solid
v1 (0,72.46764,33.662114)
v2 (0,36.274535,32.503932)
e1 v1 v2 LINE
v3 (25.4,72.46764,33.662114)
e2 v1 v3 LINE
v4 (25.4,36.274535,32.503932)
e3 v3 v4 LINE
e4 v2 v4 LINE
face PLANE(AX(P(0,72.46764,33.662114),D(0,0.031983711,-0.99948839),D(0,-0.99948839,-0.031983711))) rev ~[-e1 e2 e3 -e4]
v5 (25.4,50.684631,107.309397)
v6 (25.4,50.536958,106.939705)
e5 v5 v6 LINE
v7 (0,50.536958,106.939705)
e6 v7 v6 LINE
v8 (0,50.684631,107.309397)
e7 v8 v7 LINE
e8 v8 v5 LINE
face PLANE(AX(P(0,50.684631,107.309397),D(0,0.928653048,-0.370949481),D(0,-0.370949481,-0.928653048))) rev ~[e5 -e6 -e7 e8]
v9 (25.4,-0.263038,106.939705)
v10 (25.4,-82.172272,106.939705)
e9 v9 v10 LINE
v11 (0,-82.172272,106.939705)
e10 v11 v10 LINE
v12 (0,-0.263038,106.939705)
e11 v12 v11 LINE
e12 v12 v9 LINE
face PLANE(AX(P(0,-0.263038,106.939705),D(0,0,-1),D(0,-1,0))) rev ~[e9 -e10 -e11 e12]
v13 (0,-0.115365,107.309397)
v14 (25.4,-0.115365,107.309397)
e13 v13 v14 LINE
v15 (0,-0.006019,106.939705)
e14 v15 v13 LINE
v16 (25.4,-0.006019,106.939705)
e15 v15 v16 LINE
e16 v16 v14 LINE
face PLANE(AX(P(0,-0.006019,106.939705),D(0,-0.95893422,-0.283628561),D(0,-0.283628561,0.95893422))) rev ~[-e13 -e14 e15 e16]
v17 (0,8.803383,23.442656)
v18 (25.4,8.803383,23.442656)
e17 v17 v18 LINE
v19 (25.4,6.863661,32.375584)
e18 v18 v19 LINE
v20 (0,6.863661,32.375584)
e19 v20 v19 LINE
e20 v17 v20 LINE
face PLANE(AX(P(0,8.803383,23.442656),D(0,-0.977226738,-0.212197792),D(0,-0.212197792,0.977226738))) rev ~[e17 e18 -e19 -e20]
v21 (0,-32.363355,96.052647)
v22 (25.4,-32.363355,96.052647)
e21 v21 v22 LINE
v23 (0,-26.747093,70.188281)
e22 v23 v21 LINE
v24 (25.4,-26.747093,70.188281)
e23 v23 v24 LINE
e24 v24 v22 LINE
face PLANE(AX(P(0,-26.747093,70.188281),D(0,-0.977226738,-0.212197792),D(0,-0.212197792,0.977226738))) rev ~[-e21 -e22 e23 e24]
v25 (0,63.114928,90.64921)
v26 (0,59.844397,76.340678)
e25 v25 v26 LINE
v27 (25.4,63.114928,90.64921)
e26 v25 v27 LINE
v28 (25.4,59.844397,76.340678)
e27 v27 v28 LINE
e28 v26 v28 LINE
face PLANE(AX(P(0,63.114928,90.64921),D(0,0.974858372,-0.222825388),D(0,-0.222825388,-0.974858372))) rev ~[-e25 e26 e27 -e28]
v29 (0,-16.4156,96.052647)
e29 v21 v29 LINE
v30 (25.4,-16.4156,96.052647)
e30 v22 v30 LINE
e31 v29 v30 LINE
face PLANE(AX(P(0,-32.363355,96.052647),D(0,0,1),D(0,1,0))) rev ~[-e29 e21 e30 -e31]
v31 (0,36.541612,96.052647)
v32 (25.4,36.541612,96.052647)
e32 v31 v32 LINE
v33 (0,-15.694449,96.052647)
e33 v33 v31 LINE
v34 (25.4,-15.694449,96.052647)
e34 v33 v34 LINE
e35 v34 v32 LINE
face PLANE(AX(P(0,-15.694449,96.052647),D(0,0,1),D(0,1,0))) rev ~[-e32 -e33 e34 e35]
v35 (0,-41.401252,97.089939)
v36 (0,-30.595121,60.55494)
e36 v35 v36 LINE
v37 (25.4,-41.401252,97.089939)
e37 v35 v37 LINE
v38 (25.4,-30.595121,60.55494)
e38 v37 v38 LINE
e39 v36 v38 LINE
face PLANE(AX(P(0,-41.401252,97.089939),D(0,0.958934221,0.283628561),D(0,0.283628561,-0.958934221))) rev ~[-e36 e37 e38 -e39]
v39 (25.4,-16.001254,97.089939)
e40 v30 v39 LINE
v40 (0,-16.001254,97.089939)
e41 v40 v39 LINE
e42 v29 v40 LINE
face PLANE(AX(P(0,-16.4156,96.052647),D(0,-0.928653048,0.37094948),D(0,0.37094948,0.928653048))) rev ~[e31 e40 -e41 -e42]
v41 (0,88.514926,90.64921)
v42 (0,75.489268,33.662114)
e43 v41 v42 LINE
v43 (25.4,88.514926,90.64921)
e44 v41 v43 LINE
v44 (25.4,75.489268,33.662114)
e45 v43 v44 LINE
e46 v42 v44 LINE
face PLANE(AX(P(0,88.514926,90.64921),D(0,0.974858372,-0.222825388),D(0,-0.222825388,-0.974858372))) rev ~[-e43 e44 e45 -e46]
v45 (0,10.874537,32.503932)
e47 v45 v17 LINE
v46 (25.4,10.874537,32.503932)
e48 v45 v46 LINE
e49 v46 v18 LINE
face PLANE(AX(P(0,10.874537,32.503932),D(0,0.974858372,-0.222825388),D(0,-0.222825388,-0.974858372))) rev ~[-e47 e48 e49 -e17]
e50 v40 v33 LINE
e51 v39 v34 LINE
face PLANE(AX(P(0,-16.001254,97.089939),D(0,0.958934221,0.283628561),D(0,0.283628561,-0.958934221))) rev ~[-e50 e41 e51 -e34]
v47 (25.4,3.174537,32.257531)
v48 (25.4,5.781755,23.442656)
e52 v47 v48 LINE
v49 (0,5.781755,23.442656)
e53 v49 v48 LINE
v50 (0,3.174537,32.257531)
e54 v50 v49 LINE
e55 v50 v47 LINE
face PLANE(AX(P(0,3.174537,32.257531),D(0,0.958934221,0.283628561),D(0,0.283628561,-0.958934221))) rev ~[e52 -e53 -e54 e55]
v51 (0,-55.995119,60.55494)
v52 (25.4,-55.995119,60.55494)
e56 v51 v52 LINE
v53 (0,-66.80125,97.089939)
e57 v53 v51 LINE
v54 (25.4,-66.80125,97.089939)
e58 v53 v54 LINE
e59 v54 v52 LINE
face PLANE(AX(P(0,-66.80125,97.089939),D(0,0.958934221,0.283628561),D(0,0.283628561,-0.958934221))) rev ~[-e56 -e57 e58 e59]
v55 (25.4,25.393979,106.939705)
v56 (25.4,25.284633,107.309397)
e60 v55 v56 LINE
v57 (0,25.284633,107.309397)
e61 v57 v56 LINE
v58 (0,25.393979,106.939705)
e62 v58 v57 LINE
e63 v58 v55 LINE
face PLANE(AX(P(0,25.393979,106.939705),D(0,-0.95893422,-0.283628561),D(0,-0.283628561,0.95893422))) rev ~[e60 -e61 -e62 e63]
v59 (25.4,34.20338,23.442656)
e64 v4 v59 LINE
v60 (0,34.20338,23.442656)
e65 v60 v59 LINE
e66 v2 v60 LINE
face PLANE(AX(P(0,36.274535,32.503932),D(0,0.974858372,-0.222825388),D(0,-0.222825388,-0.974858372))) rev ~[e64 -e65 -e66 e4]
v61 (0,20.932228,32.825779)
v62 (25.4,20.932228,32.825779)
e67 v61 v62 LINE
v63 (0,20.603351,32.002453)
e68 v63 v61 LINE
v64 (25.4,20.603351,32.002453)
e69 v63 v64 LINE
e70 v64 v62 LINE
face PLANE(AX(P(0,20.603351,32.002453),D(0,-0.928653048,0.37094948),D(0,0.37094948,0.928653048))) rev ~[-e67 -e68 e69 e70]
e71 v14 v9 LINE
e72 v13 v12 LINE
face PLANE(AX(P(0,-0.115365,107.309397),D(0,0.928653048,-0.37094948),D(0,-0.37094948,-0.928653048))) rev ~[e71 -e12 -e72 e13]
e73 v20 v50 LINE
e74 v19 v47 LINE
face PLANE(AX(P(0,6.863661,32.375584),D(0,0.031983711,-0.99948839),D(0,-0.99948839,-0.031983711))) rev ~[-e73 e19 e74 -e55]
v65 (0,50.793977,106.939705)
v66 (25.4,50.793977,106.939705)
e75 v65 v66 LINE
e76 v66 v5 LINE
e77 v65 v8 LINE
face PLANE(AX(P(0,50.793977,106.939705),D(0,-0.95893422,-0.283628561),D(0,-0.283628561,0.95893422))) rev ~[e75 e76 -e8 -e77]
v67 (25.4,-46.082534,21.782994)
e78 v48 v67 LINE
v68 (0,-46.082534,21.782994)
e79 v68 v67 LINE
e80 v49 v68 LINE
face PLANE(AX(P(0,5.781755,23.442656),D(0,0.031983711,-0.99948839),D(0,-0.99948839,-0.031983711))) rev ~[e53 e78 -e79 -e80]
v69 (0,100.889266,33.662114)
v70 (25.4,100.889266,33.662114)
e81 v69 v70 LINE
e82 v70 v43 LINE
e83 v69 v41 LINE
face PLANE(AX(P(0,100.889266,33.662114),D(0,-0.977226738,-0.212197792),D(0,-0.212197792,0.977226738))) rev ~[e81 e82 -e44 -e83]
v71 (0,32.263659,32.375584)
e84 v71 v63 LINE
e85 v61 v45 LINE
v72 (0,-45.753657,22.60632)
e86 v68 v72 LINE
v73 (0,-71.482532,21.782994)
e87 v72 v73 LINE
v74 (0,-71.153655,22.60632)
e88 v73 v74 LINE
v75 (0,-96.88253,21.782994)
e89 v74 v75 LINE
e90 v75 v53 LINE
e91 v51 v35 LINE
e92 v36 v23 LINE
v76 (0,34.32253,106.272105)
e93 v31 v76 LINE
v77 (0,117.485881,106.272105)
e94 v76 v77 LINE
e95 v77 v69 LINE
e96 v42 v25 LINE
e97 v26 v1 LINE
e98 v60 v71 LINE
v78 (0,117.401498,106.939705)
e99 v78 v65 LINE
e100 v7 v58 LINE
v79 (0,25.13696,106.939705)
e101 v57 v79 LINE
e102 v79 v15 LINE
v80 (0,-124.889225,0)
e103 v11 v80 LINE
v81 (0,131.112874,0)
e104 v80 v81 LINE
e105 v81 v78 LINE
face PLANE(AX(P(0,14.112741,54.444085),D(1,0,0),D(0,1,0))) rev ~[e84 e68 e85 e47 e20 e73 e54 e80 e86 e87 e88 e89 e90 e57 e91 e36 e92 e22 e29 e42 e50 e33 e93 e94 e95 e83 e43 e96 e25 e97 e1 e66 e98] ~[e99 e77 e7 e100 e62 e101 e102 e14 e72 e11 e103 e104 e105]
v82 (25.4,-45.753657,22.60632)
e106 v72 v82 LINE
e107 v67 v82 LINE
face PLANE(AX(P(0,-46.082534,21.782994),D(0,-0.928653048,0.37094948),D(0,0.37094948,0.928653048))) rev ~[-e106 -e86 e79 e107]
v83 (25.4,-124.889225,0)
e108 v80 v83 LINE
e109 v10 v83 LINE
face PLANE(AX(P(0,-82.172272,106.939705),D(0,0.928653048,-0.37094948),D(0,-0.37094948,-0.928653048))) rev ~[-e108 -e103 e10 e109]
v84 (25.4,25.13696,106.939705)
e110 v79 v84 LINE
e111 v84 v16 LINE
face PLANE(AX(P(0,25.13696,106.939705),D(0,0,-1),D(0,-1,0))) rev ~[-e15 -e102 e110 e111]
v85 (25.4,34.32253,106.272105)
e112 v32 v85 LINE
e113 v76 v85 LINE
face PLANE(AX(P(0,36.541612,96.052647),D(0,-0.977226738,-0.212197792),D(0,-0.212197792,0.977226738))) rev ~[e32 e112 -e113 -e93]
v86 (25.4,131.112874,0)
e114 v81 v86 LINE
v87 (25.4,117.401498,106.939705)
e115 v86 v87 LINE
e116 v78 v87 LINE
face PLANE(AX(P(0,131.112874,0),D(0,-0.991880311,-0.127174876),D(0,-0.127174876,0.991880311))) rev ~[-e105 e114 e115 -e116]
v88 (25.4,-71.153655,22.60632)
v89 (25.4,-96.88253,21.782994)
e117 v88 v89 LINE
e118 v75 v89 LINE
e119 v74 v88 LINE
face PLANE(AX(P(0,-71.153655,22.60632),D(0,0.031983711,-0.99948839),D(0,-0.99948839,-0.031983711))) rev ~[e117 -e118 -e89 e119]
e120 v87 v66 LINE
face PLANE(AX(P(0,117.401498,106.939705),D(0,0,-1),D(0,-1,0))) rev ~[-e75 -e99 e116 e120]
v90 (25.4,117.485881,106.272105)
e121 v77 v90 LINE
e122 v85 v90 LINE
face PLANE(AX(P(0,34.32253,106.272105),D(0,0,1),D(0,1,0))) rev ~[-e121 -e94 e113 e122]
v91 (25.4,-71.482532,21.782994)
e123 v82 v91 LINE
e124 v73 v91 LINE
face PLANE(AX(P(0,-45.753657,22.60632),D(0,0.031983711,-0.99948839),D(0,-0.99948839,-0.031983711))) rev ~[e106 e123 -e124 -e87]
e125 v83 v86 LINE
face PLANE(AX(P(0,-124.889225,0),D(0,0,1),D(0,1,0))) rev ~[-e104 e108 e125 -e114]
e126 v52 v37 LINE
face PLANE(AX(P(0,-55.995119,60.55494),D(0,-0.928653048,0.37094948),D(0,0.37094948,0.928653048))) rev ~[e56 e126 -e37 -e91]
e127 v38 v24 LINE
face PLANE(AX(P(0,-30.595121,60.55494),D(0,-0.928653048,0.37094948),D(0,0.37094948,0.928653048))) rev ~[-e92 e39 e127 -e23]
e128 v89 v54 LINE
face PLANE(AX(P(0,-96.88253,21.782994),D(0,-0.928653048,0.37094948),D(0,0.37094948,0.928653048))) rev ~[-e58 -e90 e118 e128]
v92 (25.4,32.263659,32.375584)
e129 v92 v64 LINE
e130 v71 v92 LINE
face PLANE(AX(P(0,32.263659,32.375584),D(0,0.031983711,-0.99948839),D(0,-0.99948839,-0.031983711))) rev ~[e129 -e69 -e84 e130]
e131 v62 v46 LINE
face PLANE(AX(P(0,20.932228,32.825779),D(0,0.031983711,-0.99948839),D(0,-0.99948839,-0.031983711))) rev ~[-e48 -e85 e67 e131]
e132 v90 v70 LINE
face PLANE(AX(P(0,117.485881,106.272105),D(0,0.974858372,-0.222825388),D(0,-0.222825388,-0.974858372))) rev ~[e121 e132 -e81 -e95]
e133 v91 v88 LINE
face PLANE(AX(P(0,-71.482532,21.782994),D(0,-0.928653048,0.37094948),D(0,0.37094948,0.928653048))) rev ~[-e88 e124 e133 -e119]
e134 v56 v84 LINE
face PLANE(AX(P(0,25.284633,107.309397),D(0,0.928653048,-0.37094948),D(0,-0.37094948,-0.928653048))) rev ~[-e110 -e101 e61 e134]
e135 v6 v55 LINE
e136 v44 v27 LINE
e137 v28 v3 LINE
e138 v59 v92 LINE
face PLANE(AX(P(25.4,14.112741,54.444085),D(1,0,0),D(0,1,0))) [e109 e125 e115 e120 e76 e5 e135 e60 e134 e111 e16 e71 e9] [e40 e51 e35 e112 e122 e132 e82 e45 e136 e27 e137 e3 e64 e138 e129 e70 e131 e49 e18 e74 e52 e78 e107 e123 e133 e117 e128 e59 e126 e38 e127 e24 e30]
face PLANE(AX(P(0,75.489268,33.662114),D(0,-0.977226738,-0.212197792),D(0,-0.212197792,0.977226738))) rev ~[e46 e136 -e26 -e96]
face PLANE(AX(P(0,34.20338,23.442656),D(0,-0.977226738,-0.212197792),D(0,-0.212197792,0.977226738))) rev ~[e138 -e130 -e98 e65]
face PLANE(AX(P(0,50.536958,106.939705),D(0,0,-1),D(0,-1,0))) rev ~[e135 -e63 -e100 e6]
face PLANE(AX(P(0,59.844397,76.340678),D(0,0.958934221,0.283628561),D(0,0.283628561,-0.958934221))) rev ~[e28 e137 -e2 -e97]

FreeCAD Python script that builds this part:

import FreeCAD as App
import Part
import Sketcher

V = App.Vector
Q = App.Units.Quantity


def add_polygon(sketch, points):
    """Adds a closed chain of lines whose ends are joined by coincident constraints."""
    first, n = sketch.GeometryCount, len(points)
    for a, b in zip(points, points[1:] + points[:1]):
        sketch.addGeometry(Part.LineSegment(App.Vector(*a, 0), App.Vector(*b, 0)), False)
    for i in range(n):
        sketch.addConstraint(Sketcher.Constraint("Coincident", first + i, 2, first + (i + 1) % n, 1))

doc = App.newDocument("Part")
params = doc.addObject("Spreadsheet::Sheet", "Params")
for row, (alias, value) in enumerate([
    ("pad1_length", "1 in"),
], start=1):
    params.set(f"A{row}", alias)
    params.set(f"B{row}", "=" + value)
    params.setAlias(f"B{row}", alias)

body = doc.addObject("PartDesign::Body", "Body")

# Sketch on YZ plane
sketch1 = body.newObject("Sketcher::SketchObject", "Sketch")
sketch1.AttachmentSupport = (doc.getObject("YZ_Plane"), [""])
sketch1.MapMode = "FlatFace"
add_polygon(sketch1, [(-124.889225, 0), (131.112874, 0), (117.401498, 106.939705), (50.793977, 106.939705), (50.684631, 107.309397), (50.536958, 106.939705), (25.393979, 106.939705), (25.284633, 107.309397), (25.13696, 106.939705), (-0.006019, 106.939705), (-0.115365, 107.309397), (-0.263038, 106.939705), (-82.172272, 106.939705)])  # lines 0-12
add_polygon(sketch1, [(36.541612, 96.052647), (34.32253, 106.272105), (117.485881, 106.272105), (100.889266, 33.662114), (88.514926, 90.64921), (75.489268, 33.662114), (63.114928, 90.64921), (59.844397, 76.340678), (72.46764, 33.662114), (36.274535, 32.503932), (34.20338, 23.442656), (32.263659, 32.375584), (20.603351, 32.002453), (20.932228, 32.825779), (10.874537, 32.503932), (8.803383, 23.442656), (6.863661, 32.375584), (3.174537, 32.257531), (5.781755, 23.442656), (-46.082534, 21.782994), (-45.753657, 22.60632), (-71.482532, 21.782994), (-71.153655, 22.60632), (-96.88253, 21.782994), (-66.80125, 97.089939), (-55.995119, 60.55494), (-41.401252, 97.089939), (-30.595121, 60.55494), (-26.747093, 70.188281), (-32.363355, 96.052647), (-16.4156, 96.052647), (-16.001254, 97.089939), (-15.694449, 96.052647)])  # lines 13-45
sketch1.addConstraint([
    Sketcher.Constraint("Horizontal", 0),
    Sketcher.Constraint("Horizontal", 2),
    Sketcher.Constraint("Horizontal", 5),
    Sketcher.Constraint("Horizontal", 8),
    Sketcher.Constraint("Horizontal", 11),
    Sketcher.Constraint("Horizontal", 14),
    Sketcher.Constraint("Horizontal", 42),
    Sketcher.Constraint("Horizontal", 45),
    Sketcher.Constraint("PointOnObject", 0, 2, -1),
    Sketcher.Constraint("DistanceX", 5, 2, 2, 2, Q("0.9999999 in")),
    Sketcher.Constraint("DistanceX", 6, 2, 3, 2, Q("0.9999999 in")),
    Sketcher.Constraint("DistanceX", 7, 2, 4, 2, Q("0.9999999 in")),
    Sketcher.Constraint("DistanceX", 8, 2, 5, 2, Q("0.9999999 in")),
    Sketcher.Constraint("DistanceX", 9, 2, 6, 2, Q("0.9999999 in")),
    Sketcher.Constraint("DistanceX", 10, 2, 7, 2, Q("0.9999999 in")),
    Sketcher.Constraint("DistanceX", 17, 2, 15, 2, Q("0.9999999 in")),
    Sketcher.Constraint("DistanceX", 18, 2, 16, 2, Q("0.9999999 in")),
    Sketcher.Constraint("DistanceX", 26, 2, 21, 2, Q("0.9999999 in")),
    Sketcher.Constraint("DistanceX", 27, 2, 22, 2, Q("0.9999999 in")),
    Sketcher.Constraint("DistanceX", 28, 2, 23, 2, Q("0.9999999 in")),
    Sketcher.Constraint("DistanceX", 33, 2, 31, 2, Q("0.9999999 in")),
    Sketcher.Constraint("DistanceX", 34, 2, 32, 2, Q("0.9999999 in")),
    Sketcher.Constraint("DistanceX", 35, 2, 33, 2, Q("0.9999999 in")),
    Sketcher.Constraint("DistanceX", 36, 2, 38, 2, Q("0.9999999 in")),
    Sketcher.Constraint("DistanceX", 37, 2, 39, 2, Q("0.9999999 in")),
    Sketcher.Constraint("DistanceY", 22, 2, 24, 2, Q("0.3369999 in")),
    Sketcher.Constraint("DistanceY", 27, 2, 24, 2, Q("0.3369999 in")),
    Sketcher.Constraint("DistanceY", 30, 2, 24, 2, Q("0.3369999 in")),
    Sketcher.Constraint("DistanceX", 0, 1, 0, 2, 256.002098),
    Sketcher.Constraint("Distance", 23, 9.1411),
    Sketcher.Constraint("Distance", 28, 9.1411),
    Sketcher.Constraint("DistanceX", 2, 2, 2, 1, 66.607521),
    Sketcher.Constraint("DistanceX", 5, 2, 5, 1, 25.142979),
    Sketcher.Constraint("DistanceX", 14, 1, 14, 2, 83.163351),
    Sketcher.Constraint("DistanceX", 45, 1, 45, 2, 52.236062),
    Sketcher.Constraint("DistanceX", 42, 2, -1, 1, 16.4156),
    Sketcher.Constraint("DistanceY", 13, 2, 5, 2, 0.6676),
    Sketcher.Constraint("DistanceY", 13, 2, 7, 2, 0.6676),
    Sketcher.Constraint("DistanceX", 13, 2, 3, 2, 16.362101),
    Sketcher.Constraint("DistanceY", 14, 2, 1, 2, 0.6676),
    Sketcher.Constraint("DistanceX", 29, 2, 26, 2, 7.7),
    Sketcher.Constraint("DistanceY", 29, 2, 26, 2, 0.246401),
    Sketcher.Constraint("DistanceY", 37, 2, 36, 2, 36.534998),
    Sketcher.Constraint("DistanceY", 37, 2, 38, 2, 36.534998),
    Sketcher.Constraint("DistanceY", 39, 2, 38, 2, 36.534998),
    Sketcher.Constraint("DistanceX", 41, 2, 43, 2, 16.362101),
    Sketcher.Constraint("Distance", 1, 107.81513),
    Sketcher.Constraint("Distance", 16, 58.315121),
    Sketcher.Constraint("Distance", 18, 58.315121),
    Sketcher.Constraint("Distance", 19, 14.677549),
    Sketcher.Constraint("Distance", 21, 36.211631),
    Sketcher.Constraint("Distance", 25, 0.886581),
    Sketcher.Constraint("Distance", 26, 10.062839),
    Sketcher.Constraint("Distance", 32, 0.886581),
    Sketcher.Constraint("Distance", 34, 0.886581),
    Sketcher.Constraint("Distance", 36, 81.092659),
    Sketcher.Constraint("Distance", 41, 26.467108),
    Sketcher.Constraint("DistanceX", 11, 2, 11, 1, 81.909234),
    Sketcher.Constraint("DistanceX", 42, 1, 42, 2, 15.947756),
    Sketcher.Constraint("DistanceX", -1, 1, 3, 2, 50.684631),
    Sketcher.Constraint("DistanceX", -1, 1, 5, 2, 25.393979),
    Sketcher.Constraint("DistanceY", -1, 1, 16, 2, 90.64921),
    Sketcher.Constraint("DistanceY", -1, 1, 18, 2, 90.64921),
    Sketcher.Constraint("DistanceX", -1, 1, 20, 2, 72.46764),
    Sketcher.Constraint("DistanceY", -1, 1, 21, 2, 32.503932),
    Sketcher.Constraint("DistanceX", -1, 1, 22, 2, 34.20338),
    Sketcher.Constraint("DistanceX", -1, 1, 23, 2, 32.263659),
    Sketcher.Constraint("DistanceX", -1, 1, 24, 2, 20.603351),
    Sketcher.Constraint("DistanceX", -1, 1, 25, 2, 20.932228),
    Sketcher.Constraint("DistanceY", -1, 1, 25, 2, 32.825779),
    Sketcher.Constraint("DistanceY", -1, 1, 26, 2, 32.503932),
    Sketcher.Constraint("DistanceY", -1, 1, 32, 2, 22.60632),
    Sketcher.Constraint("DistanceX", 33, 2, -1, 1, 71.482532),
    Sketcher.Constraint("DistanceY", -1, 1, 34, 2, 22.60632),
    Sketcher.Constraint("DistanceX", 36, 2, -1, 1, 66.80125),
    Sketcher.Constraint("DistanceY", -1, 1, 36, 2, 97.089939),
    Sketcher.Constraint("DistanceX", 37, 2, -1, 1, 55.995119),
    Sketcher.Constraint("DistanceY", -1, 1, 40, 2, 70.188281),
    Sketcher.Constraint("DistanceY", -1, 1, 43, 2, 97.089939),
    Sketcher.Constraint("DistanceX", 44, 2, -1, 1, 15.694449),
    Sketcher.Constraint("DistanceX", 12, 2, 9, 2, 124.77386),
    Sketcher.Constraint("DistanceX", 15, 2, 0, 2, 30.223608),
    Sketcher.Constraint("DistanceY", 15, 2, 14, 2, 72.609991),
    Sketcher.Constraint("DistanceX", 19, 2, 18, 2, 3.270531),
    Sketcher.Constraint("DistanceY", 19, 2, 3, 2, 30.968719),
    Sketcher.Constraint("DistanceX", 31, 2, 30, 2, 51.864289),
    Sketcher.Constraint("DistanceY", 31, 2, 30, 2, 1.659662),
    Sketcher.Constraint("DistanceY", 36, 2, 9, 2, 10.219458),
    Sketcher.Constraint("DistanceX", 38, 2, 40, 2, 14.654159),
    Sketcher.Constraint("DistanceY", 41, 2, 10, 2, 10.887058),
    Sketcher.Constraint("DistanceY", 44, 2, 10, 2, 10.887058),
    Sketcher.Constraint("DistanceY", 45, 2, 6, 2, 11.256751),
])
pad1 = body.newObject("PartDesign::Pad", "Pad")
pad1.Profile = sketch1
pad1.setExpression("Length", "Params.pad1_length")

doc.recompute()
